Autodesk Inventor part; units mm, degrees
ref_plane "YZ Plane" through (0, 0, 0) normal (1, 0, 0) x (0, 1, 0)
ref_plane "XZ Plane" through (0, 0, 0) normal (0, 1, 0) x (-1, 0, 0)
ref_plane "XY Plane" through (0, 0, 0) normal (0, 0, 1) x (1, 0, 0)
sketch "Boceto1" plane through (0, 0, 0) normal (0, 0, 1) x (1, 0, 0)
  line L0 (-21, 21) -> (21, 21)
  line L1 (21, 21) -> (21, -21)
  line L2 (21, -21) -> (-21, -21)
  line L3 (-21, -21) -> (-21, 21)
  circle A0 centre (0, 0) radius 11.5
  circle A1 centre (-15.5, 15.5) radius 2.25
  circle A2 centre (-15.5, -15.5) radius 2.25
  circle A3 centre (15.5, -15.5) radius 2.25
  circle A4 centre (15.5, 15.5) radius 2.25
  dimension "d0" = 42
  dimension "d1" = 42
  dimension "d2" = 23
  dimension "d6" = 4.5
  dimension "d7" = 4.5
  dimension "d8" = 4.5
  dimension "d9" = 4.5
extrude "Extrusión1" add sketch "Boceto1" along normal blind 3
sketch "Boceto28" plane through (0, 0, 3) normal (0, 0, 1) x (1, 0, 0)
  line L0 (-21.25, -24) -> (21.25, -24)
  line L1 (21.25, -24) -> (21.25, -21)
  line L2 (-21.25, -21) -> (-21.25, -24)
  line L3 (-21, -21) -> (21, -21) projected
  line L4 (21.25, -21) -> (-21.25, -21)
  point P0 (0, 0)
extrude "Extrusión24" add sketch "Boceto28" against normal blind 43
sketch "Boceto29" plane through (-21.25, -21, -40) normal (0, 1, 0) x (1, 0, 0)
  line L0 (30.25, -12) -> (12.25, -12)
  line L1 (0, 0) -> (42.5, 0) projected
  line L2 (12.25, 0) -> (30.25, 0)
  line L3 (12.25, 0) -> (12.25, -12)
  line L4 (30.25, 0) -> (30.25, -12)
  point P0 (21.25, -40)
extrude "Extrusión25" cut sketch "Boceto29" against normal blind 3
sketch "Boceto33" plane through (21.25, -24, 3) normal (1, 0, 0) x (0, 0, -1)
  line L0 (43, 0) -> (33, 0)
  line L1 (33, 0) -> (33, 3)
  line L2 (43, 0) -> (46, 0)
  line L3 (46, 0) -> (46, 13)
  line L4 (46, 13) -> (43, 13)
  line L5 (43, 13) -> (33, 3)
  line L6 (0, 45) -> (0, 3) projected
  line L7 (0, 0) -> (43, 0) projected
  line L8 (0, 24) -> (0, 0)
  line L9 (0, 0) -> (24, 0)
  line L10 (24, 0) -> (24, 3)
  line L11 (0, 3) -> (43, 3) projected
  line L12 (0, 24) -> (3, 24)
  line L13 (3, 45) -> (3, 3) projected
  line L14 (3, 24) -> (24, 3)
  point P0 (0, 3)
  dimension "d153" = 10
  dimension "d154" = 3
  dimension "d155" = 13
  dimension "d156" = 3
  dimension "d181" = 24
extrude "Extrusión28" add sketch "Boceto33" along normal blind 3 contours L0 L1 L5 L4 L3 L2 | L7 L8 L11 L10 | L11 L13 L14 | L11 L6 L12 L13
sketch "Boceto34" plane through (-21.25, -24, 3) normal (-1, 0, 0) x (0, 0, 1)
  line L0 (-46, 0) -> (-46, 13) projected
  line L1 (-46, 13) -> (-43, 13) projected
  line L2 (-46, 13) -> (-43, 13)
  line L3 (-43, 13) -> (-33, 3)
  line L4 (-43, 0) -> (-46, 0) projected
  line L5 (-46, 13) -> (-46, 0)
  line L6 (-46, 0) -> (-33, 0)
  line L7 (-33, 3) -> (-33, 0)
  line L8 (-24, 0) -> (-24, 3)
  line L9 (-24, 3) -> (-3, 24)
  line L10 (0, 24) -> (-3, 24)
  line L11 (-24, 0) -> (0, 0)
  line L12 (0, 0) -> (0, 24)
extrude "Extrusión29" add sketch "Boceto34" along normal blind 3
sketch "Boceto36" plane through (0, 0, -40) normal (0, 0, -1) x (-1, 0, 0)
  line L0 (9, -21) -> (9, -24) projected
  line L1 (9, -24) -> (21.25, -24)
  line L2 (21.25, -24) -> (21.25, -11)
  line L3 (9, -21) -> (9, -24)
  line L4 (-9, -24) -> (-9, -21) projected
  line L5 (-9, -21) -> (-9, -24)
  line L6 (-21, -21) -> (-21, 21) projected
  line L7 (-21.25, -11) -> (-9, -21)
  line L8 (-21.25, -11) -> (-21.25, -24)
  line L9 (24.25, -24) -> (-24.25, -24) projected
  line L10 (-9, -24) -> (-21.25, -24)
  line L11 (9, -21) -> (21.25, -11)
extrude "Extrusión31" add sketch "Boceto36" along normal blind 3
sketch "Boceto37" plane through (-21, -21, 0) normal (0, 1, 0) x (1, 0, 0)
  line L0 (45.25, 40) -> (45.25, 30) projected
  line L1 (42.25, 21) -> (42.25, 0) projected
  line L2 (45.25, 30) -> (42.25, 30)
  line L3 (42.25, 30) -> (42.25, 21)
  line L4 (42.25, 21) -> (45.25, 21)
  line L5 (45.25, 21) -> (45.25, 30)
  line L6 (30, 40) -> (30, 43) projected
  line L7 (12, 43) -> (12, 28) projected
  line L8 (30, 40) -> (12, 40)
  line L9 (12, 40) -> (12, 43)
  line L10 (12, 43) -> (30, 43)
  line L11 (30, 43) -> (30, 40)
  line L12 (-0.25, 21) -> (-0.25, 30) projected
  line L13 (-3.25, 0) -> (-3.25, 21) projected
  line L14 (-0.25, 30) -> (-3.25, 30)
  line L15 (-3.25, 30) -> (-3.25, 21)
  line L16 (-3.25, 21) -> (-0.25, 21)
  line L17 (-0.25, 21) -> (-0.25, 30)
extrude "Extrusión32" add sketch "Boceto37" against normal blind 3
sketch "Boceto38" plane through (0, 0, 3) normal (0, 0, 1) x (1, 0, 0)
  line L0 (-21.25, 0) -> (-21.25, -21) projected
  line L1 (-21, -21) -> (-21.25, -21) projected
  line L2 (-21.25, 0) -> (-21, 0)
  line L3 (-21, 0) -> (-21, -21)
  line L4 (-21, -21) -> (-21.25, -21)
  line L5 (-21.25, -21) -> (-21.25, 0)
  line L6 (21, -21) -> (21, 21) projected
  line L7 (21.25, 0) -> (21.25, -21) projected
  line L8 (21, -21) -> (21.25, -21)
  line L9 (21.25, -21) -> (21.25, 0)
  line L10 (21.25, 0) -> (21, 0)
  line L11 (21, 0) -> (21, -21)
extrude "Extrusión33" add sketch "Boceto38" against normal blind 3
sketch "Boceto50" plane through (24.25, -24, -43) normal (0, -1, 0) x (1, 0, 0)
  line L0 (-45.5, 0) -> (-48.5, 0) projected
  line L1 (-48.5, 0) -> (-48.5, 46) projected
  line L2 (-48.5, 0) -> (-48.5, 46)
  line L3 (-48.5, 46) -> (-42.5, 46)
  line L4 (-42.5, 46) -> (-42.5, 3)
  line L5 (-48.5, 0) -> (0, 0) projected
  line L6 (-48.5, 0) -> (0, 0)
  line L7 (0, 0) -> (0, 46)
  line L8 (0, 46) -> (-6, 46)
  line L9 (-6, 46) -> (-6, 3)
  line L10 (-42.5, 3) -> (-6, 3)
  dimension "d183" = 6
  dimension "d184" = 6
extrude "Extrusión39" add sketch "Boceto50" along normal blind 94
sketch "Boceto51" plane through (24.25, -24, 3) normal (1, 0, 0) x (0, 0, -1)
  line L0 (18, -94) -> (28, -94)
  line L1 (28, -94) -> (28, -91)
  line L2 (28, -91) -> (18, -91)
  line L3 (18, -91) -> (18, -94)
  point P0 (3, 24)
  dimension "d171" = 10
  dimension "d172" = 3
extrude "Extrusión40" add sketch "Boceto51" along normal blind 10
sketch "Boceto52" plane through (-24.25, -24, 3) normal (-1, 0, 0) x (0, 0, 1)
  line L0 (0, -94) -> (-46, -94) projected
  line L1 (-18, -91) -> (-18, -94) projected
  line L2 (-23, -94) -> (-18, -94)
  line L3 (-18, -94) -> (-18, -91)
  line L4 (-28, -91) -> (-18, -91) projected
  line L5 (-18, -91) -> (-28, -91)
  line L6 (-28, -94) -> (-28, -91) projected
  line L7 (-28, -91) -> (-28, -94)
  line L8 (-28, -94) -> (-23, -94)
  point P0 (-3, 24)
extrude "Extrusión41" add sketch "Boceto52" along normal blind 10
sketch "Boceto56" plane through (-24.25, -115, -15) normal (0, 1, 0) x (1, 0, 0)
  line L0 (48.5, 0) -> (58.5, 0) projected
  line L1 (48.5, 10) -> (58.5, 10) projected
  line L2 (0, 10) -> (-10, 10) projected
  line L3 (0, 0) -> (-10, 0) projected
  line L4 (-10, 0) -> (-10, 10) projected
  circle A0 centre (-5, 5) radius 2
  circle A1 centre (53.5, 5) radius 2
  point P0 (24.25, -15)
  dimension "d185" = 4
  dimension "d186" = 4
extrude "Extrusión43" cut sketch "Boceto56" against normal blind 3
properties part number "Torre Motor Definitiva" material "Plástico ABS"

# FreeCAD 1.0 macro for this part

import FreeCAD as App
import Part
import Sketcher

V = App.Vector
Q = App.Units.Quantity


def add_polygon(sketch, points):
    """Adds a closed chain of lines whose ends are joined by coincident constraints."""
    first, n = sketch.GeometryCount, len(points)
    for a, b in zip(points, points[1:] + points[:1]):
        sketch.addGeometry(Part.LineSegment(App.Vector(*a, 0), App.Vector(*b, 0)), False)
    for i in range(n):
        sketch.addConstraint(Sketcher.Constraint("Coincident", first + i, 2, first + (i + 1) % n, 1))

doc = App.newDocument("Part")
body = doc.addObject("PartDesign::Body", "Body")

# Sketch on XY plane
sketch1 = body.newObject("Sketcher::SketchObject", "Sketch")
sketch1.AttachmentSupport = (doc.getObject("XY_Plane"), [""])
sketch1.MapMode = "FlatFace"
add_polygon(sketch1, [(21, 21), (-21, 21), (-21, -21), (21, -21)])  # lines 0-3
sketch1.addGeometry(Part.Circle(V(-15.5, -15.5, 0), V(0, 0, 1), 2.25), False)  # 4
sketch1.addGeometry(Part.Circle(V(15.5, -15.5, 0), V(0, 0, 1), 2.25), False)  # 5
sketch1.addGeometry(Part.Circle(V(-15.5, 15.5, 0), V(0, 0, 1), 2.25), False)  # 6
sketch1.addGeometry(Part.Circle(V(0, 0, 0), V(0, 0, 1), 11.5), False)  # 7
sketch1.addGeometry(Part.Circle(V(15.5, 15.5, 0), V(0, 0, 1), 2.25), False)  # 8
sketch1.addConstraint([
    Sketcher.Constraint("Horizontal", 0),
    Sketcher.Constraint("Vertical", 1),
    Sketcher.Constraint("Horizontal", 2),
    Sketcher.Constraint("Vertical", 3),
    Sketcher.Constraint("Coincident", 7, 3, -1, 1),
    Sketcher.Constraint("Equal", 4, 5),
    Sketcher.Constraint("Equal", 5, 6),
    Sketcher.Constraint("Equal", 6, 8),
    Sketcher.Constraint("Symmetric", 5, 3, 6, 3, -1, 1),
    Sketcher.Constraint("Symmetric", 4, 3, 8, 3, -1, 1),
    Sketcher.Constraint("Symmetric", 0, 2, 2, 2, -1, 1),
    Sketcher.Constraint("Symmetric", 4, 3, 5, 3, -2),
    Sketcher.Constraint("Equal", 2, 1),
    Sketcher.Constraint("Diameter", 7, Q("23 mm")),
    Sketcher.Constraint("Diameter", 4, Q("4.5 mm")),
    Sketcher.Constraint("DistanceX", 0, 2, 0, 1, Q("42 mm")),
    Sketcher.Constraint("DistanceX", 4, 3, 5, 3, Q("31 mm")),
    Sketcher.Constraint("DistanceY", 4, 3, 6, 3, Q("31 mm")),
])
pad1 = body.newObject("PartDesign::Pad", "Pad")
pad1.Profile = sketch1
pad1.Length = 3

# Sketch on XY plane
sketch2 = body.newObject("Sketcher::SketchObject", "Sketch001")
sketch2.AttachmentSupport = (doc.getObject("XY_Plane"), [""])
sketch2.MapMode = "FlatFace"
sketch2.AttachmentOffset = App.Placement(V(0, 0, 3), App.Rotation())
add_polygon(sketch2, [(-21.25, -21), (-21.25, -24), (21.25, -24), (21.25, -21)])  # lines 0-3
sketch2.addConstraint([
    Sketcher.Constraint("Vertical", 0),
    Sketcher.Constraint("Horizontal", 1),
    Sketcher.Constraint("Vertical", 2),
    Sketcher.Constraint("Horizontal", 3),
    Sketcher.Constraint("DistanceY", 0, 2, 0, 1, Q("3 mm")),
    Sketcher.Constraint("DistanceX", 1, 1, 1, 2, Q("42.5 mm")),
    Sketcher.Constraint("DistanceY", 0, 2, -1, 1, Q("24 mm")),
    Sketcher.Constraint("DistanceX", 0, 2, -1, 1, Q("21.25 mm")),
])
pad2 = body.newObject("PartDesign::Pad", "Pad001")
pad2.Profile = sketch2
pad2.Length = 43
pad2.Reversed = True

# Sketch on XZ plane
sketch3 = body.newObject("Sketcher::SketchObject", "Sketch002")
sketch3.AttachmentSupport = (doc.getObject("XZ_Plane"), [""])
sketch3.MapMode = "FlatFace"
sketch3.AttachmentOffset = App.Placement(V(0, 0, 21), App.Rotation())
add_polygon(sketch3, [(-9, -28), (9, -28), (9, -40), (-9, -40)])  # lines 0-3
sketch3.addConstraint([
    Sketcher.Constraint("Horizontal", 0),
    Sketcher.Constraint("Vertical", 1),
    Sketcher.Constraint("Horizontal", 2),
    Sketcher.Constraint("Vertical", 3),
    Sketcher.Constraint("DistanceX", 0, 1, 0, 2, Q("18 mm")),
    Sketcher.Constraint("DistanceY", 1, 2, 1, 1, Q("12 mm")),
    Sketcher.Constraint("DistanceX", -1, 1, 0, 2, Q("9 mm")),
    Sketcher.Constraint("DistanceY", 0, 2, -1, 1, Q("28 mm")),
])
pocket1 = body.newObject("PartDesign::Pocket", "Pocket")
pocket1.Profile = sketch3
pocket1.Length = 3
pocket1.Reversed = True

# Sketch on YZ plane
sketch4 = body.newObject("Sketcher::SketchObject", "Sketch003")
sketch4.AttachmentSupport = (doc.getObject("YZ_Plane"), [""])
sketch4.MapMode = "FlatFace"
sketch4.AttachmentOffset = App.Placement(V(0, 0, 21.25), App.Rotation())
add_polygon(sketch4, [(-24, -30), (-24, -43), (-11, -43), (-11, -40), (-21, -30)])  # lines 0-4
add_polygon(sketch4, [(-24, 3), (-24, -21), (-21, -21), (0, 0), (0, 3)])  # lines 5-9
sketch4.addConstraint([
    Sketcher.Constraint("Vertical", 0),
    Sketcher.Constraint("Horizontal", 1),
    Sketcher.Constraint("Vertical", 2),
    Sketcher.Constraint("Horizontal", 4),
    Sketcher.Constraint("Vertical", 5),
    Sketcher.Constraint("Horizontal", 6),
    Sketcher.Constraint("Vertical", 8),
    Sketcher.Constraint("Horizontal", 9),
    Sketcher.Constraint("Coincident", 7, 2, -1, 1),
    Sketcher.Constraint("Perpendicular", 3, 7),
    Sketcher.Constraint("Vertical", 4, 2, 5, 2),
    Sketcher.Constraint("Vertical", 3, 2, 6, 2),
    Sketcher.Constraint("Equal", 1, 0),
    Sketcher.Constraint("Equal", 6, 2),
    Sketcher.Constraint("Equal", 9, 5),
    Sketcher.Constraint("DistanceX", 1, 1, 1, 2, Q("13 mm")),
    Sketcher.Constraint("DistanceX", 4, 2, 4, 1, Q("3 mm")),
    Sketcher.Constraint("DistanceX", 9, 2, 9, 1, Q("24 mm")),
    Sketcher.Constraint("DistanceY", 0, 2, -1, 1, Q("43 mm")),
])
pad3 = body.newObject("PartDesign::Pad", "Pad002")
pad3.Profile = sketch4
pad3.Length = 3

# Sketch on YZ plane
sketch5 = body.newObject("Sketcher::SketchObject", "Sketch004")
sketch5.AttachmentSupport = (doc.getObject("YZ_Plane"), [""])
sketch5.MapMode = "FlatFace"
sketch5.AttachmentOffset = App.Placement(V(0, 0, -21.25), App.Rotation())
add_polygon(sketch5, [(-11, -43), (-24, -43), (-24, -30), (-21, -30), (-11, -40)])  # lines 0-4
add_polygon(sketch5, [(-21, -21), (-24, -21), (-24, 3), (0, 3), (0, 0)])  # lines 5-9
sketch5.addConstraint([
    Sketcher.Constraint("Horizontal", 0),
    Sketcher.Constraint("Vertical", 1),
    Sketcher.Constraint("Horizontal", 2),
    Sketcher.Constraint("Vertical", 4),
    Sketcher.Constraint("Horizontal", 5),
    Sketcher.Constraint("Vertical", 6),
    Sketcher.Constraint("Horizontal", 7),
    Sketcher.Constraint("Vertical", 8),
    Sketcher.Constraint("Coincident", 8, 2, -1, 1),
    Sketcher.Constraint("Perpendicular", 3, 9),
    Sketcher.Constraint("Vertical", 1, 2, 5, 2),
    Sketcher.Constraint("Vertical", 2, 2, 9, 2),
    Sketcher.Constraint("Equal", 0, 1),
    Sketcher.Constraint("Equal", 5, 4),
    Sketcher.Constraint("Equal", 7, 6),
    Sketcher.Constraint("DistanceX", 0, 2, 0, 1, Q("13 mm")),
    Sketcher.Constraint("DistanceX", 2, 1, 2, 2, Q("3 mm")),
    Sketcher.Constraint("DistanceX", 7, 1, 7, 2, Q("24 mm")),
    Sketcher.Constraint("DistanceY", 0, 2, -1, 1, Q("43 mm")),
])
pad4 = body.newObject("PartDesign::Pad", "Pad003")
pad4.Profile = sketch5
pad4.Length = 3
pad4.Reversed = True

# Sketch on XY plane
sketch6 = body.newObject("Sketcher::SketchObject", "Sketch005")
sketch6.AttachmentSupport = (doc.getObject("XY_Plane"), [""])
sketch6.MapMode = "FlatFace"
sketch6.AttachmentOffset = App.Placement(V(0, 0, -40), App.Rotation())
add_polygon(sketch6, [(-21.25, -11), (-9, -21), (-9, -24), (-21.25, -24)])  # lines 0-3
add_polygon(sketch6, [(21.25, -24), (9, -24), (9, -21), (21.25, -11)])  # lines 4-7
sketch6.addConstraint([
    Sketcher.Constraint("Vertical", 1),
    Sketcher.Constraint("Horizontal", 2),
    Sketcher.Constraint("Vertical", 3),
    Sketcher.Constraint("Horizontal", 4),
    Sketcher.Constraint("Vertical", 5),
    Sketcher.Constraint("Vertical", 7),
    Sketcher.Constraint("Symmetric", 1, 2, 4, 2, -2),
    Sketcher.Constraint("Symmetric", 3, 2, 6, 2, -2),
    Sketcher.Constraint("Horizontal", 0, 2, 5, 2),
    Sketcher.Constraint("DistanceY", 1, 2, 1, 1, Q("3 mm")),
    Sketcher.Constraint("DistanceY", 3, 1, 3, 2, Q("13 mm")),
    Sketcher.Constraint("DistanceX", 0, 2, -1, 1, Q("9 mm")),
    Sketcher.Constraint("DistanceY", 0, 2, -1, 1, Q("21 mm")),
    Sketcher.Constraint("DistanceX", 2, 2, 2, 1, Q("12.25 mm")),
])
pad5 = body.newObject("PartDesign::Pad", "Pad004")
pad5.Profile = sketch6
pad5.Length = 3
pad5.Reversed = True

# Sketch on XZ plane
sketch7 = body.newObject("Sketcher::SketchObject", "Sketch006")
sketch7.AttachmentSupport = (doc.getObject("XZ_Plane"), [""])
sketch7.MapMode = "FlatFace"
sketch7.AttachmentOffset = App.Placement(V(0, 0, 21), App.Rotation())
add_polygon(sketch7, [(24.25, -21), (24.25, -30), (21.25, -30), (21.25, -21)])  # lines 0-3
add_polygon(sketch7, [(-9, -40), (9, -40), (9, -43), (-9, -43)])  # lines 4-7
add_polygon(sketch7, [(-24.25, -21), (-21.25, -21), (-21.25, -30), (-24.25, -30)])  # lines 8-11
sketch7.addConstraint([
    Sketcher.Constraint("Vertical", 0),
    Sketcher.Constraint("Horizontal", 1),
    Sketcher.Constraint("Vertical", 2),
    Sketcher.Constraint("Horizontal", 3),
    Sketcher.Constraint("Horizontal", 4),
    Sketcher.Constraint("Vertical", 5),
    Sketcher.Constraint("Horizontal", 6),
    Sketcher.Constraint("Vertical", 7),
    Sketcher.Constraint("Horizontal", 8),
    Sketcher.Constraint("Vertical", 9),
    Sketcher.Constraint("Horizontal", 10),
    Sketcher.Constraint("Vertical", 11),
    Sketcher.Constraint("Symmetric", 2, 2, 8, 2, -2),
    Sketcher.Constraint("Symmetric", 0, 2, 10, 2, -2),
    Sketcher.Constraint("Equal", 10, 5),
    Sketcher.Constraint("DistanceX", 1, 2, 1, 1, Q("3 mm")),
    Sketcher.Constraint("DistanceX", 4, 1, 4, 2, Q("18 mm")),
    Sketcher.Constraint("DistanceY", 0, 2, 0, 1, Q("9 mm")),
    Sketcher.Constraint("DistanceY", 0, 2, -1, 1, Q("30 mm")),
    Sketcher.Constraint("DistanceX", -1, 1, 4, 2, Q("9 mm")),
    Sketcher.Constraint("DistanceY", 4, 2, -1, 1, Q("40 mm")),
    Sketcher.Constraint("DistanceX", 8, 2, 2, 2, Q("42.5 mm")),
])
pad6 = body.newObject("PartDesign::Pad", "Pad005")
pad6.Profile = sketch7
pad6.Length = 3

# Sketch on XY plane
sketch8 = body.newObject("Sketcher::SketchObject", "Sketch007")
sketch8.AttachmentSupport = (doc.getObject("XY_Plane"), [""])
sketch8.MapMode = "FlatFace"
sketch8.AttachmentOffset = App.Placement(V(0, 0, 3), App.Rotation())
add_polygon(sketch8, [(-21, 0), (-21.25, 0), (-21.25, -21), (-21, -21)])  # lines 0-3
add_polygon(sketch8, [(21, 0), (21, -21), (21.25, -21), (21.25, 0)])  # lines 4-7
sketch8.addConstraint([
    Sketcher.Constraint("Horizontal", 0),
    Sketcher.Constraint("Vertical", 1),
    Sketcher.Constraint("Horizontal", 2),
    Sketcher.Constraint("Vertical", 3),
    Sketcher.Constraint("Vertical", 4),
    Sketcher.Constraint("Horizontal", 5),
    Sketcher.Constraint("Vertical", 6),
    Sketcher.Constraint("Horizontal", 7),
    Sketcher.Constraint("Symmetric", 0, 2, 6, 2, -1, 1),
    Sketcher.Constraint("Symmetric", 2, 2, 4, 2, -2),
    Sketcher.Constraint("PointOnObject", 0, 2, -1),
    Sketcher.Constraint("DistanceY", 1, 2, 1, 1, Q("21 mm")),
    Sketcher.Constraint("DistanceX", 2, 2, -1, 1, Q("21 mm")),
    Sketcher.Constraint("DistanceX", 0, 2, 0, 1, Q("0.25 mm")),
])
pad7 = body.newObject("PartDesign::Pad", "Pad006")
pad7.Profile = sketch8
pad7.Length = 3
pad7.Reversed = True

# Sketch on XZ plane
sketch9 = body.newObject("Sketcher::SketchObject", "Sketch008")
sketch9.AttachmentSupport = (doc.getObject("XZ_Plane"), [""])
sketch9.MapMode = "FlatFace"
sketch9.AttachmentOffset = App.Placement(V(0, 0, 24), App.Rotation())
add_polygon(sketch9, [(-24.25, -43), (24.25, -43), (24.25, 3), (18.25, 3), (18.25, -40), (-18.25, -40), (-18.25, 3), (-24.25, 3)])  # lines 0-7
sketch9.addConstraint([
    Sketcher.Constraint("Horizontal", 0),
    Sketcher.Constraint("Vertical", 1),
    Sketcher.Constraint("Horizontal", 2),
    Sketcher.Constraint("Vertical", 3),
    Sketcher.Constraint("Horizontal", 4),
    Sketcher.Constraint("Vertical", 5),
    Sketcher.Constraint("Horizontal", 6),
    Sketcher.Constraint("Vertical", 7),
    Sketcher.Constraint("Symmetric", 2, 2, 5, 2, -2),
    Sketcher.Constraint("Equal", 2, 6),
    Sketcher.Constraint("DistanceX", 2, 2, 2, 1, Q("6 mm")),
    Sketcher.Constraint("DistanceY", 1, 1, 1, 2, Q("46 mm")),
    Sketcher.Constraint("DistanceY", 3, 2, 3, 1, Q("43 mm")),
    Sketcher.Constraint("DistanceX", 0, 1, 0, 2, Q("48.5 mm")),
    Sketcher.Constraint("DistanceY", 0, 2, -1, 1, Q("43 mm")),
])
pad8 = body.newObject("PartDesign::Pad", "Pad007")
pad8.Profile = sketch9
pad8.Length = 94

# Sketch on YZ plane
sketch10 = body.newObject("Sketcher::SketchObject", "Sketch009")
sketch10.AttachmentSupport = (doc.getObject("YZ_Plane"), [""])
sketch10.MapMode = "FlatFace"
sketch10.AttachmentOffset = App.Placement(V(0, 0, 24.25), App.Rotation())
add_polygon(sketch10, [(-115, -15), (-118, -15), (-118, -25), (-115, -25)])  # lines 0-3
sketch10.addConstraint([
    Sketcher.Constraint("Horizontal", 0),
    Sketcher.Constraint("Vertical", 1),
    Sketcher.Constraint("Horizontal", 2),
    Sketcher.Constraint("Vertical", 3),
    Sketcher.Constraint("DistanceX", 0, 2, 0, 1, Q("3 mm")),
    Sketcher.Constraint("DistanceY", 1, 2, 1, 1, Q("10 mm")),
    Sketcher.Constraint("DistanceX", 0, 2, -1, 1, Q("118 mm")),
    Sketcher.Constraint("DistanceY", 0, 2, -1, 1, Q("15 mm")),
])
pad9 = body.newObject("PartDesign::Pad", "Pad008")
pad9.Profile = sketch10
pad9.Length = 10

# Sketch on YZ plane
sketch11 = body.newObject("Sketcher::SketchObject", "Sketch010")
sketch11.AttachmentSupport = (doc.getObject("YZ_Plane"), [""])
sketch11.MapMode = "FlatFace"
sketch11.AttachmentOffset = App.Placement(V(0, 0, -24.25), App.Rotation())
add_polygon(sketch11, [(-118, -25), (-118, -15), (-115, -15), (-115, -25)])  # lines 0-3
sketch11.addConstraint([
    Sketcher.Constraint("Vertical", 0),
    Sketcher.Constraint("Horizontal", 1),
    Sketcher.Constraint("Vertical", 2),
    Sketcher.Constraint("Horizontal", 3),
    Sketcher.Constraint("DistanceX", 1, 1, 1, 2, Q("3 mm")),
    Sketcher.Constraint("DistanceY", 0, 1, 0, 2, Q("10 mm")),
    Sketcher.Constraint("DistanceX", 0, 2, -1, 1, Q("118 mm")),
    Sketcher.Constraint("DistanceY", 0, 2, -1, 1, Q("15 mm")),
])
pad10 = body.newObject("PartDesign::Pad", "Pad009")
pad10.Profile = sketch11
pad10.Length = 10
pad10.Reversed = True

# Sketch on XZ plane
sketch12 = body.newObject("Sketcher::SketchObject", "Sketch011")
sketch12.AttachmentSupport = (doc.getObject("XZ_Plane"), [""])
sketch12.MapMode = "FlatFace"
sketch12.AttachmentOffset = App.Placement(V(0, 0, 115), App.Rotation())
sketch12.addGeometry([
    Part.Circle(V(-29.25, -20, 0), V(0, 0, 1), 2),
    Part.Circle(V(29.25, -20, 0), V(0, 0, 1), 2),
], False)
sketch12.addConstraint([
    Sketcher.Constraint("Equal", 0, 1),
    Sketcher.Constraint("Symmetric", 0, 3, 1, 3, -2),
    Sketcher.Constraint("Diameter", 0, Q("4 mm")),
    Sketcher.Constraint("DistanceY", 0, 3, -1, 1, Q("20 mm")),
    Sketcher.Constraint("DistanceX", 0, 3, 1, 3, Q("58.5 mm")),
])
pocket2 = body.newObject("PartDesign::Pocket", "Pocket001")
pocket2.Profile = sketch12
pocket2.Length = 3
pocket2.Reversed = True

doc.recompute()
